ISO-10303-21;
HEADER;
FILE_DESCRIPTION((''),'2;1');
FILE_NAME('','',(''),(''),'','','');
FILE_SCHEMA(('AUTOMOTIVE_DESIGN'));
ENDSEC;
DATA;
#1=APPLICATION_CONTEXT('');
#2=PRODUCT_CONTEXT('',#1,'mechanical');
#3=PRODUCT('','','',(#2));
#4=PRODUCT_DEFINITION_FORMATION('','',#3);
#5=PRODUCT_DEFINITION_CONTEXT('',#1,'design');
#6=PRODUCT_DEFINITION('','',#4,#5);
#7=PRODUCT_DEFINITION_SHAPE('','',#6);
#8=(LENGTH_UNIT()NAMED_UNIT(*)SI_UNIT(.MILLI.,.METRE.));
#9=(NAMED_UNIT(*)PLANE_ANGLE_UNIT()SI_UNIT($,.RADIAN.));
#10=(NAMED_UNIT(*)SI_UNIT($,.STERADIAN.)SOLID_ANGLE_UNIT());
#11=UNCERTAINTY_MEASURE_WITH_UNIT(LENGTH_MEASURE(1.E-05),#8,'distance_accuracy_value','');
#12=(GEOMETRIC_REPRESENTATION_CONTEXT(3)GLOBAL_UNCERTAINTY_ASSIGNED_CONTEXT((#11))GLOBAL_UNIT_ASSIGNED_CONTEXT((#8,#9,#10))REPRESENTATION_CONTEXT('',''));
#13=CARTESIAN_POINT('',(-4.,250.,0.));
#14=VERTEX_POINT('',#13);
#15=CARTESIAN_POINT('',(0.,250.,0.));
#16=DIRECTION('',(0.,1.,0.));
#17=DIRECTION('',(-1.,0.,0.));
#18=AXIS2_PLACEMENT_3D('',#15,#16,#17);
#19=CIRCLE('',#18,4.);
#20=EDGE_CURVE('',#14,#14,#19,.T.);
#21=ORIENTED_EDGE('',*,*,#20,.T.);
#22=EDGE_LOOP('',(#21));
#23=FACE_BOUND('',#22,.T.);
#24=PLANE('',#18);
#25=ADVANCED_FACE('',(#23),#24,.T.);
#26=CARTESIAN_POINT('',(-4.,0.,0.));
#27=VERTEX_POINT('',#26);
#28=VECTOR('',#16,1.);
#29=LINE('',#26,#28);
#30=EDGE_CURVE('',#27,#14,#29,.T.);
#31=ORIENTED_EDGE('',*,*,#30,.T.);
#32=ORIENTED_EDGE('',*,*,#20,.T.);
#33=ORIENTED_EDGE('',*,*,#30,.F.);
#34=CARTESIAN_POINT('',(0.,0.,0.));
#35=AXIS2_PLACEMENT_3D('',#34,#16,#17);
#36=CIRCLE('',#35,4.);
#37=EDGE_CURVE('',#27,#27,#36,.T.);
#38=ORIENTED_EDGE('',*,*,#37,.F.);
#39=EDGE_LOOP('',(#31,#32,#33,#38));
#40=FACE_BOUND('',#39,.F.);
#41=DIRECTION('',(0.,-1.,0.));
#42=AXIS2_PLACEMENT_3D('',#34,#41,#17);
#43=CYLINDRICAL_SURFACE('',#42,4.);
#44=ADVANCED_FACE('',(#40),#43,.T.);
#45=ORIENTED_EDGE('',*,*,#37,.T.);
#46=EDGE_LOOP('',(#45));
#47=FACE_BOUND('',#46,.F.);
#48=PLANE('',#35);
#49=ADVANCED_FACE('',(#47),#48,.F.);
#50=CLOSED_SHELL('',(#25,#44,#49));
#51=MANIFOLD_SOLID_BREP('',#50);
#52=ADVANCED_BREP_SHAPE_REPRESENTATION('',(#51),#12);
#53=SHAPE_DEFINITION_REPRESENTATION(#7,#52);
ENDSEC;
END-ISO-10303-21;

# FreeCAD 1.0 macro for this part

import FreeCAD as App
import Part
import Sketcher
Q = App.Units.Quantity

doc = App.newDocument("Part")
params = doc.addObject("Spreadsheet::Sheet", "Params")
for row, (alias, value) in enumerate([
    ("sketch1_diameter", "8 mm"),
    ("pad1_length", "250 mm"),
], start=1):
    params.set(f"A{row}", alias)
    params.set(f"B{row}", "=" + value)
    params.setAlias(f"B{row}", alias)

body = doc.addObject("PartDesign::Body", "Body")

sketch1 = body.newObject("Sketcher::SketchObject", "Sketch")
sketch1.AttachmentSupport = (doc.getObject("XZ_Plane"), [""])
sketch1.MapMode = "FlatFace"
sketch1.addGeometry(Part.Circle(App.Vector(0, 0, 0), App.Vector(0, 0, 1), 4), False)
sketch1.addConstraint([
    Sketcher.Constraint("Coincident", 0, 3, -1, 1),
    Sketcher.Constraint("Diameter", 0, Q("8 mm")),
])
sketch1.setExpression("Constraints[1]", "Params.sketch1_diameter")
pad1 = body.newObject("PartDesign::Pad", "Pad")
pad1.Profile = sketch1
pad1.setExpression("Length", "Params.pad1_length")
pad1.Reversed = True

doc.recompute()
